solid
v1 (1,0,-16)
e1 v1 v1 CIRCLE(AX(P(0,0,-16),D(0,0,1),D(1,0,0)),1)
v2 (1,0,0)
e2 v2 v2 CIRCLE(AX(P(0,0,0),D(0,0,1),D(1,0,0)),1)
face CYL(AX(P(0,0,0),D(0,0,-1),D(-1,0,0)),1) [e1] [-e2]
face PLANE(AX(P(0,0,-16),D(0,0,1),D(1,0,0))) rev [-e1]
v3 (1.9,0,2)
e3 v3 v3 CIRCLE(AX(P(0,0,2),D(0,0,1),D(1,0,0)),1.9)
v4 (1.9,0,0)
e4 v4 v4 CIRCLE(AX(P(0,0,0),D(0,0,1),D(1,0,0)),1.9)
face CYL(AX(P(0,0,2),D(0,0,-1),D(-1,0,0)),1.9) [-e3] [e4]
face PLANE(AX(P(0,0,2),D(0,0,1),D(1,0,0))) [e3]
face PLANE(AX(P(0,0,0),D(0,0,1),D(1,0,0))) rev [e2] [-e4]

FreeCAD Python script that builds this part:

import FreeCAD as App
import Part
import Sketcher
from FreeCAD import Vector

doc = App.newDocument("Part")
body = doc.addObject("PartDesign::Body", "Body")

sketch1 = body.newObject("Sketcher::SketchObject", "Sketch")
sketch1.AttachmentSupport = (doc.getObject("XY_Plane"), [""])
sketch1.MapMode = "FlatFace"
sketch1.AttachmentOffset = App.Placement(Vector(0, 0, -16), App.Rotation())
sketch1.addGeometry(Part.Circle(Vector(0, 0, 0), Vector(0, 0, 1), 1), False)
sketch1.addConstraint(Sketcher.Constraint("Coincident", 0, 3, -1, 1))
sketch1.addConstraint(Sketcher.Constraint("Diameter", 0, 2.0))
pad1 = body.newObject("PartDesign::Pad", "Pad")
pad1.Profile = sketch1
pad1.Length = 16

sketch2 = body.newObject("Sketcher::SketchObject", "Sketch001")
sketch2.AttachmentSupport = (doc.getObject("XY_Plane"), [""])
sketch2.MapMode = "FlatFace"
sketch2.addGeometry(Part.Circle(Vector(0, 0, 0), Vector(0, 0, 1), 1.9), False)
sketch2.addConstraint(Sketcher.Constraint("Coincident", 0, 3, -1, 1))
sketch2.addConstraint(Sketcher.Constraint("Diameter", 0, 3.8))
pad2 = body.newObject("PartDesign::Pad", "Pad001")
pad2.Profile = sketch2
pad2.Length = 2

doc.recompute()
